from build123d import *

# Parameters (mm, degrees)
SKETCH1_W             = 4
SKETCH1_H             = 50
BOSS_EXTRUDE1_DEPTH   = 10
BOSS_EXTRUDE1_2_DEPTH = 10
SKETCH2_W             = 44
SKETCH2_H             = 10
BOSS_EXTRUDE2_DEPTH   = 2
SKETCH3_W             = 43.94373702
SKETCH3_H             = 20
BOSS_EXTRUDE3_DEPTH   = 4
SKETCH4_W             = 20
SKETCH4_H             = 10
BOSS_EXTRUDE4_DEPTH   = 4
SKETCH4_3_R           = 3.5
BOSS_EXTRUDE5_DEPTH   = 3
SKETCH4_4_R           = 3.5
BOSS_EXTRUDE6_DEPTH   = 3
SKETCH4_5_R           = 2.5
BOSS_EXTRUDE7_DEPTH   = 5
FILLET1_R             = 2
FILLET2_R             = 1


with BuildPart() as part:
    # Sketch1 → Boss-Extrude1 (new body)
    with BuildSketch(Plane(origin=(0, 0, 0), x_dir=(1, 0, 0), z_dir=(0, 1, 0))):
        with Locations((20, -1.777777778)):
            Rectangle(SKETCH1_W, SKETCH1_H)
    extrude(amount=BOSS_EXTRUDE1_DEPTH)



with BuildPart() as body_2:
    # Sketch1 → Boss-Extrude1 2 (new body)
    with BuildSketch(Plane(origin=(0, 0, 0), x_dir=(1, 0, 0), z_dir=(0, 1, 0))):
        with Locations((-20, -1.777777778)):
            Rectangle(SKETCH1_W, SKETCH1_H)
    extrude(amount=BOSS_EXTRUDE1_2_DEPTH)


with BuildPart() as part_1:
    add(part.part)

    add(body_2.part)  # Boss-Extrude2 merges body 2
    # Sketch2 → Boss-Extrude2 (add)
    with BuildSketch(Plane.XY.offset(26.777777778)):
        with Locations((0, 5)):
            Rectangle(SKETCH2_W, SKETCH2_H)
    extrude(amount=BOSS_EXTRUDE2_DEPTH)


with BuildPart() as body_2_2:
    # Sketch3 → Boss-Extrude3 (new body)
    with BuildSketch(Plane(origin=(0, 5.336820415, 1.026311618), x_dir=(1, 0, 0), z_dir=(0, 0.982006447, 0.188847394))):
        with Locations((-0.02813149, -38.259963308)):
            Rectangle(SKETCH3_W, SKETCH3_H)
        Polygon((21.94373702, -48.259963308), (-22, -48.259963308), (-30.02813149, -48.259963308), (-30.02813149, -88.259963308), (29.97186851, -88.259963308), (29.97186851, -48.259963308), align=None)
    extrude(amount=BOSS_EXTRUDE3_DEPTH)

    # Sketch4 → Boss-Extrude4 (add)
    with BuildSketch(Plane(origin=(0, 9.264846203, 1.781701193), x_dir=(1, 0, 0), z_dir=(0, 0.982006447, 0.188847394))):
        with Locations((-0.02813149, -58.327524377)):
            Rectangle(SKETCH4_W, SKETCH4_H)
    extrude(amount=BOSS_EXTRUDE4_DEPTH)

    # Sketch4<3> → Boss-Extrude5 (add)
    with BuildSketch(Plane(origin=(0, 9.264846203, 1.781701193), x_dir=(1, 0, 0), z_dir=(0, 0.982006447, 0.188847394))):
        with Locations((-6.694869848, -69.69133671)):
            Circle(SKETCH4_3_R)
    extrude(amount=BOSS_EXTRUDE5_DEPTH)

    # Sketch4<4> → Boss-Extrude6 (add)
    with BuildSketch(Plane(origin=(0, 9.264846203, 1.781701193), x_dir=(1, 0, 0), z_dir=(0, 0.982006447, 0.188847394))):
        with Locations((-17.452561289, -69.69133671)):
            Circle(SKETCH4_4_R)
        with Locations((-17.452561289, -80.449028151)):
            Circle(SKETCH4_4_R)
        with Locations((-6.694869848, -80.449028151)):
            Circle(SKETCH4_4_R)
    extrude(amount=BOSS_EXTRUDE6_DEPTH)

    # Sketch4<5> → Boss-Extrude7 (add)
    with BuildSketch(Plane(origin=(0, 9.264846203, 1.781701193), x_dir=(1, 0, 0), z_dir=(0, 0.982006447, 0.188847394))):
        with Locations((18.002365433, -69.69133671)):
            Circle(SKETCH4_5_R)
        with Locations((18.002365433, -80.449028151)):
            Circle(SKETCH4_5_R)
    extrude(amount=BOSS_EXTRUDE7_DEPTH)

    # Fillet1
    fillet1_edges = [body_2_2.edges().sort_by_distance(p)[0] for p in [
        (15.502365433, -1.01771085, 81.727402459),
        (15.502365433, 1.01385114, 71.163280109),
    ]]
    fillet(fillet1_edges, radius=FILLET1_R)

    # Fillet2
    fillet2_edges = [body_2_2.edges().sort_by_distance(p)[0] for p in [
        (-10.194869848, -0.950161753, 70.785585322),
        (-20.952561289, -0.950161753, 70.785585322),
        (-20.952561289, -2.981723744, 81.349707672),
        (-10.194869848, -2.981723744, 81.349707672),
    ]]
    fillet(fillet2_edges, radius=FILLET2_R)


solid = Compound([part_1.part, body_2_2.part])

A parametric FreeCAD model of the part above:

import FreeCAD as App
import Part
import Sketcher


def edges_at(feature, points):
    """Names of the edges that pass closest to the given points."""
    edges = feature.Shape.Edges
    near = lambda p: min(range(len(edges)), key=lambda i: edges[i].distToShape(Part.Vertex(*p))[0])
    return sorted({f"Edge{near(p) + 1}" for p in points})


def add_polygon(sketch, points):
    """Adds a closed chain of lines whose ends are joined by coincident constraints."""
    first, n = sketch.GeometryCount, len(points)
    for a, b in zip(points, points[1:] + points[:1]):
        sketch.addGeometry(Part.LineSegment(App.Vector(*a, 0), App.Vector(*b, 0)), False)
    for i in range(n):
        sketch.addConstraint(Sketcher.Constraint("Coincident", first + i, 2, first + (i + 1) % n, 1))

doc = App.newDocument("Part")
body = doc.addObject("PartDesign::Body", "Body")

sketch1 = body.newObject("Sketcher::SketchObject", "Sketch")
sketch1.AttachmentSupport = (doc.getObject("XZ_Plane"), [""])
sketch1.MapMode = "FlatFace"
add_polygon(sketch1, [(18, -23.222222), (18, 26.777778), (22, 26.777778), (22, -23.222222)])
sketch1.addConstraint([
    Sketcher.Constraint("Vertical", 0),
    Sketcher.Constraint("Horizontal", 1),
    Sketcher.Constraint("Vertical", 2),
    Sketcher.Constraint("Horizontal", 3),
    Sketcher.Constraint("DistanceX", 1, 1, 1, 2, 4.0),
    Sketcher.Constraint("DistanceY", 0, 1, 0, 2, 50.0),
    Sketcher.Constraint("DistanceX", -1, 1, 0, 2, 18.0),
    Sketcher.Constraint("DistanceY", -1, 1, 0, 2, 26.777778),
])
pad1 = body.newObject("PartDesign::Pad", "Pad")
pad1.Profile = sketch1
pad1.Length = 10
pad1.Reversed = True
body2 = doc.addObject("PartDesign::Body", "Body001")

sketch2 = body2.newObject("Sketcher::SketchObject", "Sketch001")
sketch2.AttachmentSupport = (doc.getObject("XZ_Plane001"), [""])
sketch2.MapMode = "FlatFace"
add_polygon(sketch2, [(-22, -23.222222), (-22, 26.777778), (-18, 26.777778), (-18, -23.222222)])
sketch2.addConstraint([
    Sketcher.Constraint("Vertical", 0),
    Sketcher.Constraint("Horizontal", 1),
    Sketcher.Constraint("Vertical", 2),
    Sketcher.Constraint("Horizontal", 3),
    Sketcher.Constraint("DistanceX", 1, 1, 1, 2, 4.0),
    Sketcher.Constraint("DistanceY", 0, 1, 0, 2, 50.0),
    Sketcher.Constraint("DistanceX", 0, 2, -1, 1, 22.0),
    Sketcher.Constraint("DistanceY", -1, 1, 0, 2, 26.777778),
])
pad2 = body2.newObject("PartDesign::Pad", "Pad001")
pad2.Profile = sketch2
pad2.Length = 10
pad2.Reversed = True
body.AllowCompound = True
doc.recompute()

boolean = body.newObject("PartDesign::Boolean", "Boolean")
boolean.Type = "Fuse"
boolean.addObjects([body2])

sketch3 = body.newObject("Sketcher::SketchObject", "Sketch002")
sketch3.AttachmentSupport = (doc.getObject("XY_Plane"), [""])
sketch3.MapMode = "FlatFace"
sketch3.AttachmentOffset = App.Placement(App.Vector(0, 0, 26.777778), App.Rotation())
add_polygon(sketch3, [(-22, 10), (-22, 0), (22, 0), (22, 10)])
sketch3.addConstraint([
    Sketcher.Constraint("Vertical", 0),
    Sketcher.Constraint("Horizontal", 1),
    Sketcher.Constraint("Vertical", 2),
    Sketcher.Constraint("Horizontal", 3),
    Sketcher.Constraint("Symmetric", 0, 2, 1, 2, -1, 1),
    Sketcher.Constraint("DistanceX", 1, 1, 1, 2, 44.0),
    Sketcher.Constraint("DistanceY", 0, 2, 0, 1, 10.0),
])
pad3 = body.newObject("PartDesign::Pad", "Pad002")
pad3.Profile = sketch3
pad3.Length = 2
body3 = doc.addObject("PartDesign::Body", "Body002")

sketch4 = body3.newObject("Sketcher::SketchObject", "Sketch003")
sketch4.Placement = App.Placement(App.Vector(0, 5.33682, 1.026312), App.Rotation(App.Vector(1, 0, 0), App.Vector(0, 0.188847394, -0.982006447), App.Vector(0, 0.982006447, 0.188847394), "ZXY"))
add_polygon(sketch4, [(-22, -28.259963), (-22, -48.259963), (-30.028131, -48.259963), (-30.028131, -88.259963), (29.971869, -88.259963), (29.971869, -48.259963), (21.943737, -48.259963), (21.943737, -28.259963)])
sketch4.addConstraint([
    Sketcher.Constraint("Vertical", 0),
    Sketcher.Constraint("Horizontal", 1),
    Sketcher.Constraint("Vertical", 2),
    Sketcher.Constraint("Horizontal", 3),
    Sketcher.Constraint("Vertical", 4),
    Sketcher.Constraint("Horizontal", 5),
    Sketcher.Constraint("Vertical", 6),
    Sketcher.Constraint("Horizontal", 7),
    Sketcher.Constraint("Horizontal", 1, 2, 4, 2),
    Sketcher.Constraint("Equal", 1, 5),
    Sketcher.Constraint("DistanceX", 3, 1, 3, 2, 60.0),
    Sketcher.Constraint("DistanceY", 0, 2, 0, 1, 20.0),
    Sketcher.Constraint("DistanceY", 2, 2, 2, 1, 40.0),
    Sketcher.Constraint("DistanceX", 0, 2, -1, 1, 22.0),
    Sketcher.Constraint("DistanceX", 1, 2, 1, 1, 8.028131),
    Sketcher.Constraint("DistanceY", 0, 2, -1, 1, 48.259963),
])
pad4 = body3.newObject("PartDesign::Pad", "Pad003")
pad4.Profile = sketch4
pad4.Length = 4

sketch5 = body3.newObject("Sketcher::SketchObject", "Sketch004")
sketch5.Placement = App.Placement(App.Vector(0, 9.264846, 1.781701), App.Rotation(App.Vector(1, 0, 0), App.Vector(0, 0.188847394, -0.982006447), App.Vector(0, 0.982006447, 0.188847394), "ZXY"))
add_polygon(sketch5, [(-10.028131, -53.327524), (-10.028131, -63.327524), (9.971869, -63.327524), (9.971869, -53.327524)])
sketch5.addConstraint([
    Sketcher.Constraint("Vertical", 0),
    Sketcher.Constraint("Horizontal", 1),
    Sketcher.Constraint("Vertical", 2),
    Sketcher.Constraint("Horizontal", 3),
    Sketcher.Constraint("DistanceX", 1, 1, 1, 2, 20.0),
    Sketcher.Constraint("DistanceY", 0, 2, 0, 1, 10.0),
    Sketcher.Constraint("DistanceX", 0, 2, -1, 1, 10.028131),
    Sketcher.Constraint("DistanceY", 0, 2, -1, 1, 63.327524),
])
pad5 = body3.newObject("PartDesign::Pad", "Pad004")
pad5.Profile = sketch5
pad5.Length = 4

sketch6 = body3.newObject("Sketcher::SketchObject", "Sketch005")
sketch6.Placement = App.Placement(App.Vector(0, 9.264846, 1.781701), App.Rotation(App.Vector(1, 0, 0), App.Vector(0, 0.188847394, -0.982006447), App.Vector(0, 0.982006447, 0.188847394), "ZXY"))
sketch6.addGeometry(Part.Circle(App.Vector(-6.69487, -69.691337, 0), App.Vector(0, 0, 1), 3.5), False)
sketch6.addConstraint([
    Sketcher.Constraint("Diameter", 0, 7.0),
    Sketcher.Constraint("DistanceX", 0, 3, -1, 1, 6.69487),
    Sketcher.Constraint("DistanceY", 0, 3, -1, 1, 69.691337),
])
pad6 = body3.newObject("PartDesign::Pad", "Pad005")
pad6.Profile = sketch6
pad6.Length = 3

sketch7 = body3.newObject("Sketcher::SketchObject", "Sketch006")
sketch7.Placement = App.Placement(App.Vector(0, 9.264846, 1.781701), App.Rotation(App.Vector(1, 0, 0), App.Vector(0, 0.188847394, -0.982006447), App.Vector(0, 0.982006447, 0.188847394), "ZXY"))
sketch7.addGeometry([
    Part.Circle(App.Vector(-17.452561, -69.691337, 0), App.Vector(0, 0, 1), 3.5),
    Part.Circle(App.Vector(-17.452561, -80.449028, 0), App.Vector(0, 0, 1), 3.5),
    Part.Circle(App.Vector(-6.69487, -80.449028, 0), App.Vector(0, 0, 1), 3.5),
], False)
sketch7.addConstraint([
    Sketcher.Constraint("Equal", 0, 1),
    Sketcher.Constraint("Equal", 1, 2),
    Sketcher.Constraint("Horizontal", 1, 3, 2, 3),
    Sketcher.Constraint("Vertical", 0, 3, 1, 3),
    Sketcher.Constraint("Diameter", 0, 7.0),
    Sketcher.Constraint("DistanceX", 0, 3, -1, 1, 17.452561),
    Sketcher.Constraint("DistanceY", 1, 3, -1, 1, 80.449028),
    Sketcher.Constraint("DistanceX", 2, 3, -1, 1, 6.69487),
    Sketcher.Constraint("DistanceY", 1, 3, 0, 3, 10.757691),
])
pad7 = body3.newObject("PartDesign::Pad", "Pad006")
pad7.Profile = sketch7
pad7.Length = 3

sketch8 = body3.newObject("Sketcher::SketchObject", "Sketch007")
sketch8.Placement = App.Placement(App.Vector(0, 9.264846, 1.781701), App.Rotation(App.Vector(1, 0, 0), App.Vector(0, 0.188847394, -0.982006447), App.Vector(0, 0.982006447, 0.188847394), "ZXY"))
sketch8.addGeometry([
    Part.Circle(App.Vector(18.002365, -69.691337, 0), App.Vector(0, 0, 1), 2.5),
    Part.Circle(App.Vector(18.002365, -80.449028, 0), App.Vector(0, 0, 1), 2.5),
], False)
sketch8.addConstraint([
    Sketcher.Constraint("Equal", 0, 1),
    Sketcher.Constraint("Vertical", 0, 3, 1, 3),
    Sketcher.Constraint("Diameter", 0, 5.0),
    Sketcher.Constraint("DistanceY", 1, 3, -1, 1, 80.449028),
    Sketcher.Constraint("DistanceY", 1, 3, 0, 3, 10.757691),
    Sketcher.Constraint("DistanceX", -1, 1, 0, 3, 18.002365),
])
pad8 = body3.newObject("PartDesign::Pad", "Pad007")
pad8.Profile = sketch8
pad8.Length = 5
doc.recompute()

fillet = body3.newObject("PartDesign::Fillet", "Fillet")
fillet.Base = (pad8, edges_at(pad8, [(15.502, -1.018, 81.727), (15.502, 1.014, 71.163)]))
fillet.Radius = 2
doc.recompute()

fillet2 = body3.newObject("PartDesign::Fillet", "Fillet001")
fillet2.Base = (fillet, edges_at(fillet, [
    (-10.195, -0.95, 70.786),
    (-20.953, -0.95, 70.786),
    (-20.953, -2.982, 81.35),
    (-10.195, -2.982, 81.35),
]))
fillet2.Radius = 1

doc.recompute()
